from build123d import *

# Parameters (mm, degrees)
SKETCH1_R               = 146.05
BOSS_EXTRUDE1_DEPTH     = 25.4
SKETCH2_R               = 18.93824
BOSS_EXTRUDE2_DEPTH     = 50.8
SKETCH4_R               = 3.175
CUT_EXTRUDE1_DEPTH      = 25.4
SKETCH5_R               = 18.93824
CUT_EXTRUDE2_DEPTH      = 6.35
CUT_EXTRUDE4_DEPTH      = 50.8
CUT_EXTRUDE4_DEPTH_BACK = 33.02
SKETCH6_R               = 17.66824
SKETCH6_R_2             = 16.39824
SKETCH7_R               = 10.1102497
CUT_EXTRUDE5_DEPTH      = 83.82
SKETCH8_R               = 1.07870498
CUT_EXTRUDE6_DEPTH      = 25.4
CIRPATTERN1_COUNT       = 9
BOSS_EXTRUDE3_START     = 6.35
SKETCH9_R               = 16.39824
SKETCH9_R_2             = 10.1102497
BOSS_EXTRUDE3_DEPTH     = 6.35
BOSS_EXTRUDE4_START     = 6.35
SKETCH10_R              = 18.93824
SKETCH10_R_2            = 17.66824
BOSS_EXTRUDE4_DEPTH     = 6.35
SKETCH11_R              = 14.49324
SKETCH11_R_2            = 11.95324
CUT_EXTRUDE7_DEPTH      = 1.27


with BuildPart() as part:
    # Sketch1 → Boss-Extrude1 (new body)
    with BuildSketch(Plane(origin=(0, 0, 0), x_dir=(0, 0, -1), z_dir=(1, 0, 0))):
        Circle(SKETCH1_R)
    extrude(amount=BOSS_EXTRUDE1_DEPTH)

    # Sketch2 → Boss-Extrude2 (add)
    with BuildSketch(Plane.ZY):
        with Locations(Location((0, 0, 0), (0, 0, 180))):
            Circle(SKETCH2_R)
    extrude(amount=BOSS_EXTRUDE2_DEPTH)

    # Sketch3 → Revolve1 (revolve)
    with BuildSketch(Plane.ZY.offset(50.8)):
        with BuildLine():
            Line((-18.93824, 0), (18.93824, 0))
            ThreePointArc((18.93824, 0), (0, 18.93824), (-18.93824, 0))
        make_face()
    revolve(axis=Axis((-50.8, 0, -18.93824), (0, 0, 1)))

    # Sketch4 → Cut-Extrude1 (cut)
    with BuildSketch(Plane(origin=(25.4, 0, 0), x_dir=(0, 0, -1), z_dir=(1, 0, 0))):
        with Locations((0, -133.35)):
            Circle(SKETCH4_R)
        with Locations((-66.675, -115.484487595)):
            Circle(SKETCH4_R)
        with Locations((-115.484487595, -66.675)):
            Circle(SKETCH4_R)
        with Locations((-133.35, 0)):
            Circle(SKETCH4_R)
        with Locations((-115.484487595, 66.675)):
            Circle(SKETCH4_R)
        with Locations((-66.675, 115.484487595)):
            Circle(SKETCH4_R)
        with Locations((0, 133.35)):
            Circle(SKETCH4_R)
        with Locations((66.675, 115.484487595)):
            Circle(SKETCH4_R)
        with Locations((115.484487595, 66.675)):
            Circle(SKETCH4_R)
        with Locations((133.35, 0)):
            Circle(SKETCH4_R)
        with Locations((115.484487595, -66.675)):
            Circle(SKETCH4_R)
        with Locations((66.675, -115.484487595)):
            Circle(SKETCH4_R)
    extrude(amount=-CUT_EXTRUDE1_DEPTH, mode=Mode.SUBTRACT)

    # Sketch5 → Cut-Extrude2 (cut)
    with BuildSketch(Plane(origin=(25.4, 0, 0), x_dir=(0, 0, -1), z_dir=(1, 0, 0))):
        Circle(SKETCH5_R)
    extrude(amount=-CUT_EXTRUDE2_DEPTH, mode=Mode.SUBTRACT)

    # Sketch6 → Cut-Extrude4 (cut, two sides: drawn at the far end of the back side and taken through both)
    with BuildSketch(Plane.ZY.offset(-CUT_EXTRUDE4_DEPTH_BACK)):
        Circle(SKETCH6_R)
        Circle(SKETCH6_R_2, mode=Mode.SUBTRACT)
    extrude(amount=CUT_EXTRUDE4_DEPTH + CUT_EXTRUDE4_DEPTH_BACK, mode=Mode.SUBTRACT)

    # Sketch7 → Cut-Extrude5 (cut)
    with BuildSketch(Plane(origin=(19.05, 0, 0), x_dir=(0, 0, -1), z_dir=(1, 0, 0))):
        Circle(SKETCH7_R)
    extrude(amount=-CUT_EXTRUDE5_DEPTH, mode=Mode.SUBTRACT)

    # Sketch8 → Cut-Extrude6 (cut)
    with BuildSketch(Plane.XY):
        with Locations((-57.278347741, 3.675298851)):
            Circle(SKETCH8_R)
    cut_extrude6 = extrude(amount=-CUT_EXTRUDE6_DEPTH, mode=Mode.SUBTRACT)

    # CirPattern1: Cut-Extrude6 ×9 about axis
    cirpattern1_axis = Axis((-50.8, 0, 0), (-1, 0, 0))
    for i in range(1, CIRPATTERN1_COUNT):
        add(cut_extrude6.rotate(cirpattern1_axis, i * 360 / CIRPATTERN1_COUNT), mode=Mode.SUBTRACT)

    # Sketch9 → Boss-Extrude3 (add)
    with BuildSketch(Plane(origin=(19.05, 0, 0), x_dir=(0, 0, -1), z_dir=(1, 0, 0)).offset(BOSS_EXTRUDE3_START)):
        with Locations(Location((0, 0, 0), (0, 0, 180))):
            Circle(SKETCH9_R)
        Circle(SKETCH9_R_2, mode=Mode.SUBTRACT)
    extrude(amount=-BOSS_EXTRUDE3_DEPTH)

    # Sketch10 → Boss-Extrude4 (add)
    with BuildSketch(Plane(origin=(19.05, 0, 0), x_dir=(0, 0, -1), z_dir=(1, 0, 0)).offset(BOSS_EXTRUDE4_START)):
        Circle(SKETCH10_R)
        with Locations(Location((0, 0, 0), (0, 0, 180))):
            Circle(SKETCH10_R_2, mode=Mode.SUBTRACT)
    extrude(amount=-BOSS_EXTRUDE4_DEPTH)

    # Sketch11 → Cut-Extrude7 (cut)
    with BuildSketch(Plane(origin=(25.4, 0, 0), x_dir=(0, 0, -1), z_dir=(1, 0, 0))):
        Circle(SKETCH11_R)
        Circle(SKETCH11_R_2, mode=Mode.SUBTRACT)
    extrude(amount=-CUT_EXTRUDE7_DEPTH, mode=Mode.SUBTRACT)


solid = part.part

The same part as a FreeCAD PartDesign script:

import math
import FreeCAD as App
import Part
import Sketcher
Q = App.Units.Quantity

doc = App.newDocument("Part")
body = doc.addObject("PartDesign::Body", "Body")

sketch1 = doc.addObject("Sketcher::SketchObject", "Sketch")
body.addObject(sketch1)
sketch1.AttachmentSupport = (doc.YZ_Plane, [""])
sketch1.MapMode = "FlatFace"
sketch1.addGeometry(Part.Circle(App.Vector(0, 0, 0), App.Vector(0, 0, 1), 146), False)
sketch1.addConstraint(Sketcher.Constraint("Coincident", 0, 3, -1, 1))
sketch1.addConstraint(Sketcher.Constraint("Diameter", 0, Q("11.5 in")))
pad1 = doc.addObject("PartDesign::Pad", "Pad")
body.addObject(pad1)
pad1.Profile = sketch1
pad1.Length = Q("1 in")

sketch2 = doc.addObject("Sketcher::SketchObject", "Sketch001")
body.addObject(sketch2)
sketch2.AttachmentSupport = (doc.YZ_Plane, [""])
sketch2.MapMode = "FlatFace"
sketch2.addGeometry(Part.Circle(App.Vector(0, 0, 0), App.Vector(0, 0, 1), 19), False)
sketch2.addConstraint(Sketcher.Constraint("Coincident", 0, 3, -1, 1))
sketch2.addConstraint(Sketcher.Constraint("Diameter", 0, Q("1.4912 in")))
pad2 = doc.addObject("PartDesign::Pad", "Pad001")
body.addObject(pad2)
pad2.Profile = sketch2
pad2.Length = Q("2 in")
pad2.Reversed = True

sketch3 = doc.addObject("Sketcher::SketchObject", "Sketch002")
body.addObject(sketch3)
sketch3.AttachmentSupport = (doc.YZ_Plane, [""])
sketch3.MapMode = "FlatFace"
sketch3.AttachmentOffset = App.Placement(App.Vector(0, 0, -2 * 25.4), App.Rotation())
sketch3.addGeometry(Part.LineSegment(App.Vector(0, -19, 0), App.Vector(0, 19, 0)), False)
sketch3.addGeometry(Part.ArcOfCircle(Part.Circle(App.Vector(0, 0, 0), App.Vector(0, 0, 1), 19), math.radians(-90), math.radians(90)), False)
sketch3.addConstraint(Sketcher.Constraint("Coincident", 0, 1, 1, 1))
sketch3.addConstraint(Sketcher.Constraint("Coincident", 1, 2, 0, 2))
sketch3.addConstraint(Sketcher.Constraint("Vertical", 0))
sketch3.addConstraint(Sketcher.Constraint("Coincident", 1, 3, -1, 1))
sketch3.addConstraint(Sketcher.Constraint("PointOnObject", 0, 1, -2))
sketch3.addConstraint(Sketcher.Constraint("Radius", 1, Q("0.7456 in")))
revolution = doc.addObject("PartDesign::Revolution", "Revolution")
body.addObject(revolution)
revolution.Profile = sketch3
revolution.ReferenceAxis = (sketch3, ["V_Axis"])
revolution.Angle = 360

sketch4 = doc.addObject("Sketcher::SketchObject", "Sketch003")
body.addObject(sketch4)
sketch4.AttachmentSupport = (doc.YZ_Plane, [""])
sketch4.MapMode = "FlatFace"
sketch4.AttachmentOffset = App.Placement(App.Vector(0, 0, 1 * 25.4), App.Rotation())
sketch4.addGeometry(Part.Circle(App.Vector(-133.3, 0, 0), App.Vector(0, 0, 1), 3.2), False)
sketch4.addGeometry(Part.Circle(App.Vector(-115.5, 66.7, 0), App.Vector(0, 0, 1), 3.2), False)
sketch4.addGeometry(Part.Circle(App.Vector(-66.7, 115.5, 0), App.Vector(0, 0, 1), 3.2), False)
sketch4.addGeometry(Part.Circle(App.Vector(0, 133.3, 0), App.Vector(0, 0, 1), 3.2), False)
sketch4.addGeometry(Part.Circle(App.Vector(66.7, 115.5, 0), App.Vector(0, 0, 1), 3.2), False)
sketch4.addGeometry(Part.Circle(App.Vector(115.5, 66.7, 0), App.Vector(0, 0, 1), 3.2), False)
sketch4.addGeometry(Part.Circle(App.Vector(133.3, 0, 0), App.Vector(0, 0, 1), 3.2), False)
sketch4.addGeometry(Part.Circle(App.Vector(115.5, -66.7, 0), App.Vector(0, 0, 1), 3.2), False)
sketch4.addGeometry(Part.Circle(App.Vector(66.7, -115.5, 0), App.Vector(0, 0, 1), 3.2), False)
sketch4.addGeometry(Part.Circle(App.Vector(0, -133.3, 0), App.Vector(0, 0, 1), 3.2), False)
sketch4.addGeometry(Part.Circle(App.Vector(-66.7, -115.5, 0), App.Vector(0, 0, 1), 3.2), False)
sketch4.addGeometry(Part.Circle(App.Vector(-115.5, -66.7, 0), App.Vector(0, 0, 1), 3.2), False)
sketch4.addConstraint(Sketcher.Constraint("Equal", 0, 1))
sketch4.addConstraint(Sketcher.Constraint("Equal", 1, 2))
sketch4.addConstraint(Sketcher.Constraint("Equal", 2, 3))
sketch4.addConstraint(Sketcher.Constraint("Equal", 3, 4))
sketch4.addConstraint(Sketcher.Constraint("Equal", 4, 5))
sketch4.addConstraint(Sketcher.Constraint("Equal", 5, 6))
sketch4.addConstraint(Sketcher.Constraint("Equal", 6, 7))
sketch4.addConstraint(Sketcher.Constraint("Equal", 7, 8))
sketch4.addConstraint(Sketcher.Constraint("Equal", 8, 9))
sketch4.addConstraint(Sketcher.Constraint("Equal", 9, 10))
sketch4.addConstraint(Sketcher.Constraint("Equal", 10, 11))
sketch4.addConstraint(Sketcher.Constraint("Symmetric", 0, 3, 6, 3, -1, 1))
sketch4.addConstraint(Sketcher.Constraint("Symmetric", 1, 3, 7, 3, -1, 1))
sketch4.addConstraint(Sketcher.Constraint("Symmetric", 2, 3, 8, 3, -1, 1))
sketch4.addConstraint(Sketcher.Constraint("Symmetric", 3, 3, 9, 3, -1, 1))
sketch4.addConstraint(Sketcher.Constraint("Symmetric", 4, 3, 10, 3, -1, 1))
sketch4.addConstraint(Sketcher.Constraint("Symmetric", 5, 3, 11, 3, -1, 1))
sketch4.addConstraint(Sketcher.Constraint("Symmetric", 2, 3, 4, 3, -2))
sketch4.addConstraint(Sketcher.Constraint("Symmetric", 1, 3, 5, 3, -2))
sketch4.addConstraint(Sketcher.Constraint("PointOnObject", 0, 3, -1))
sketch4.addConstraint(Sketcher.Constraint("PointOnObject", 3, 3, -2))
sketch4.addConstraint(Sketcher.Constraint("Diameter", 0, Q("0.25 in")))
sketch4.addConstraint(Sketcher.Constraint("DistanceX", 0, 3, -1, 1, Q("5.25 in")))
sketch4.addConstraint(Sketcher.Constraint("DistanceY", -1, 1, 3, 3, Q("5.25 in")))
sketch4.addConstraint(Sketcher.Constraint("DistanceX", 2, 3, 4, 3, Q("5.25 in")))
sketch4.addConstraint(Sketcher.Constraint("DistanceY", 7, 3, 5, 3, Q("5.25 in")))
sketch4.addConstraint(Sketcher.Constraint("DistanceX", 1, 3, -1, 1, Q("115.484488 mm")))
sketch4.addConstraint(Sketcher.Constraint("DistanceY", -1, 1, 2, 3, Q("115.484488 mm")))
pocket1 = doc.addObject("PartDesign::Pocket", "Pocket")
body.addObject(pocket1)
pocket1.Profile = sketch4
pocket1.Length = Q("1 in")

sketch5 = doc.addObject("Sketcher::SketchObject", "Sketch004")
body.addObject(sketch5)
sketch5.AttachmentSupport = (doc.YZ_Plane, [""])
sketch5.MapMode = "FlatFace"
sketch5.AttachmentOffset = App.Placement(App.Vector(0, 0, 1 * 25.4), App.Rotation())
sketch5.addGeometry(Part.Circle(App.Vector(0, 0, 0), App.Vector(0, 0, 1), 19), False)
sketch5.addConstraint(Sketcher.Constraint("Coincident", 0, 3, -1, 1))
sketch5.addConstraint(Sketcher.Constraint("Diameter", 0, Q("1.4912 in")))
pocket2 = doc.addObject("PartDesign::Pocket", "Pocket001")
body.addObject(pocket2)
pocket2.Profile = sketch5
pocket2.Length = Q("0.25 in")

sketch6 = doc.addObject("Sketcher::SketchObject", "Sketch005")
body.addObject(sketch6)
sketch6.AttachmentSupport = (doc.YZ_Plane, [""])
sketch6.MapMode = "FlatFace"
sketch6.addGeometry(Part.Circle(App.Vector(0, 0, 0), App.Vector(0, 0, 1), 18), False)
sketch6.addGeometry(Part.Circle(App.Vector(0, 0, 0), App.Vector(0, 0, 1), 16), False)
sketch6.addConstraint(Sketcher.Constraint("Coincident", 0, 3, -1, 1))
sketch6.addConstraint(Sketcher.Constraint("Coincident", 1, 3, -1, 1))
sketch6.addConstraint(Sketcher.Constraint("Diameter", 0, Q("1.3912 in")))
sketch6.addConstraint(Sketcher.Constraint("Diameter", 1, Q("1.2912 in")))
pocket3 = doc.addObject("PartDesign::Pocket", "Pocket002")
body.addObject(pocket3)
pocket3.Profile = sketch6
pocket3.Type = "TwoLengths"
pocket3.Length = Q("2 in")
pocket3.Length2 = Q("1.3 in")

sketch7 = doc.addObject("Sketcher::SketchObject", "Sketch006")
body.addObject(sketch7)
sketch7.AttachmentSupport = (doc.YZ_Plane, [""])
sketch7.MapMode = "FlatFace"
sketch7.AttachmentOffset = App.Placement(App.Vector(0, 0, 0.75 * 25.4), App.Rotation())
sketch7.addGeometry(Part.Circle(App.Vector(0, 0, 0), App.Vector(0, 0, 1), 10), False)
sketch7.addConstraint(Sketcher.Constraint("Coincident", 0, 3, -1, 1))
sketch7.addConstraint(Sketcher.Constraint("Diameter", 0, Q("20.220499 mm")))
pocket4 = doc.addObject("PartDesign::Pocket", "Pocket003")
body.addObject(pocket4)
pocket4.Profile = sketch7
pocket4.Length = Q("3.3 in")

sketch8 = doc.addObject("Sketcher::SketchObject", "Sketch007")
body.addObject(sketch8)
sketch8.AttachmentSupport = (doc.XY_Plane, [""])
sketch8.MapMode = "FlatFace"
sketch8.addGeometry(Part.Circle(App.Vector(-57.3, 3.7, 0), App.Vector(0, 0, 1), 1.1), False)
sketch8.addConstraint(Sketcher.Constraint("Diameter", 0, Q("2.15741 mm")))
sketch8.addConstraint(Sketcher.Constraint("DistanceY", -1, 1, 0, 3, Q("3.675299 mm")))
sketch8.addConstraint(Sketcher.Constraint("DistanceX", 0, 3, -1, 1, Q("57.278348 mm")))
pocket5 = doc.addObject("PartDesign::Pocket", "Pocket004")
body.addObject(pocket5)
pocket5.Profile = sketch8
pocket5.Length = Q("1 in")
doc.recompute()

polarpattern = doc.addObject("PartDesign::PolarPattern", "PolarPattern")
body.addObject(polarpattern)
polarpattern.Originals = [pocket5]
polarpattern.Axis = (doc.X_Axis, [""])
polarpattern.Angle = 360
polarpattern.Occurrences = 9
body.Tip = polarpattern

sketch9 = doc.addObject("Sketcher::SketchObject", "Sketch008")
body.addObject(sketch9)
sketch9.AttachmentSupport = (doc.YZ_Plane, [""])
sketch9.MapMode = "FlatFace"
sketch9.AttachmentOffset = App.Placement(App.Vector(0, 0, 1 * 25.4), App.Rotation())
sketch9.addGeometry(Part.Circle(App.Vector(0, 0, 0), App.Vector(0, 0, 1), 16), False)
sketch9.addGeometry(Part.Circle(App.Vector(0, 0, 0), App.Vector(0, 0, 1), 10), False)
sketch9.addConstraint(Sketcher.Constraint("Coincident", 0, 3, -1, 1))
sketch9.addConstraint(Sketcher.Constraint("Coincident", 1, 3, -1, 1))
sketch9.addConstraint(Sketcher.Constraint("Diameter", 0, Q("1.2912 in")))
sketch9.addConstraint(Sketcher.Constraint("Diameter", 1, Q("20.220499 mm")))
pad3 = doc.addObject("PartDesign::Pad", "Pad002")
body.addObject(pad3)
pad3.Profile = sketch9
pad3.Length = Q("0.25 in")
pad3.Reversed = True

sketch10 = doc.addObject("Sketcher::SketchObject", "Sketch009")
body.addObject(sketch10)
sketch10.AttachmentSupport = (doc.YZ_Plane, [""])
sketch10.MapMode = "FlatFace"
sketch10.AttachmentOffset = App.Placement(App.Vector(0, 0, 1 * 25.4), App.Rotation())
sketch10.addGeometry(Part.Circle(App.Vector(0, 0, 0), App.Vector(0, 0, 1), 19), False)
sketch10.addGeometry(Part.Circle(App.Vector(0, 0, 0), App.Vector(0, 0, 1), 18), False)
sketch10.addConstraint(Sketcher.Constraint("Coincident", 0, 3, -1, 1))
sketch10.addConstraint(Sketcher.Constraint("Coincident", 1, 3, -1, 1))
sketch10.addConstraint(Sketcher.Constraint("Diameter", 0, Q("1.4912 in")))
sketch10.addConstraint(Sketcher.Constraint("Diameter", 1, Q("1.3912 in")))
pad4 = doc.addObject("PartDesign::Pad", "Pad003")
body.addObject(pad4)
pad4.Profile = sketch10
pad4.Length = Q("0.25 in")
pad4.Reversed = True

sketch11 = doc.addObject("Sketcher::SketchObject", "Sketch010")
body.addObject(sketch11)
sketch11.AttachmentSupport = (doc.YZ_Plane, [""])
sketch11.MapMode = "FlatFace"
sketch11.AttachmentOffset = App.Placement(App.Vector(0, 0, 1 * 25.4), App.Rotation())
sketch11.addGeometry(Part.Circle(App.Vector(0, 0, 0), App.Vector(0, 0, 1), 14), False)
sketch11.addGeometry(Part.Circle(App.Vector(0, 0, 0), App.Vector(0, 0, 1), 12), False)
sketch11.addConstraint(Sketcher.Constraint("Coincident", 0, 3, -1, 1))
sketch11.addConstraint(Sketcher.Constraint("Coincident", 1, 3, -1, 1))
sketch11.addConstraint(Sketcher.Constraint("Diameter", 0, Q("1.1412 in")))
sketch11.addConstraint(Sketcher.Constraint("Diameter", 1, Q("0.9412 in")))
pocket6 = doc.addObject("PartDesign::Pocket", "Pocket005")
body.addObject(pocket6)
pocket6.Profile = sketch11
pocket6.Length = Q("0.05 in")

doc.recompute()
